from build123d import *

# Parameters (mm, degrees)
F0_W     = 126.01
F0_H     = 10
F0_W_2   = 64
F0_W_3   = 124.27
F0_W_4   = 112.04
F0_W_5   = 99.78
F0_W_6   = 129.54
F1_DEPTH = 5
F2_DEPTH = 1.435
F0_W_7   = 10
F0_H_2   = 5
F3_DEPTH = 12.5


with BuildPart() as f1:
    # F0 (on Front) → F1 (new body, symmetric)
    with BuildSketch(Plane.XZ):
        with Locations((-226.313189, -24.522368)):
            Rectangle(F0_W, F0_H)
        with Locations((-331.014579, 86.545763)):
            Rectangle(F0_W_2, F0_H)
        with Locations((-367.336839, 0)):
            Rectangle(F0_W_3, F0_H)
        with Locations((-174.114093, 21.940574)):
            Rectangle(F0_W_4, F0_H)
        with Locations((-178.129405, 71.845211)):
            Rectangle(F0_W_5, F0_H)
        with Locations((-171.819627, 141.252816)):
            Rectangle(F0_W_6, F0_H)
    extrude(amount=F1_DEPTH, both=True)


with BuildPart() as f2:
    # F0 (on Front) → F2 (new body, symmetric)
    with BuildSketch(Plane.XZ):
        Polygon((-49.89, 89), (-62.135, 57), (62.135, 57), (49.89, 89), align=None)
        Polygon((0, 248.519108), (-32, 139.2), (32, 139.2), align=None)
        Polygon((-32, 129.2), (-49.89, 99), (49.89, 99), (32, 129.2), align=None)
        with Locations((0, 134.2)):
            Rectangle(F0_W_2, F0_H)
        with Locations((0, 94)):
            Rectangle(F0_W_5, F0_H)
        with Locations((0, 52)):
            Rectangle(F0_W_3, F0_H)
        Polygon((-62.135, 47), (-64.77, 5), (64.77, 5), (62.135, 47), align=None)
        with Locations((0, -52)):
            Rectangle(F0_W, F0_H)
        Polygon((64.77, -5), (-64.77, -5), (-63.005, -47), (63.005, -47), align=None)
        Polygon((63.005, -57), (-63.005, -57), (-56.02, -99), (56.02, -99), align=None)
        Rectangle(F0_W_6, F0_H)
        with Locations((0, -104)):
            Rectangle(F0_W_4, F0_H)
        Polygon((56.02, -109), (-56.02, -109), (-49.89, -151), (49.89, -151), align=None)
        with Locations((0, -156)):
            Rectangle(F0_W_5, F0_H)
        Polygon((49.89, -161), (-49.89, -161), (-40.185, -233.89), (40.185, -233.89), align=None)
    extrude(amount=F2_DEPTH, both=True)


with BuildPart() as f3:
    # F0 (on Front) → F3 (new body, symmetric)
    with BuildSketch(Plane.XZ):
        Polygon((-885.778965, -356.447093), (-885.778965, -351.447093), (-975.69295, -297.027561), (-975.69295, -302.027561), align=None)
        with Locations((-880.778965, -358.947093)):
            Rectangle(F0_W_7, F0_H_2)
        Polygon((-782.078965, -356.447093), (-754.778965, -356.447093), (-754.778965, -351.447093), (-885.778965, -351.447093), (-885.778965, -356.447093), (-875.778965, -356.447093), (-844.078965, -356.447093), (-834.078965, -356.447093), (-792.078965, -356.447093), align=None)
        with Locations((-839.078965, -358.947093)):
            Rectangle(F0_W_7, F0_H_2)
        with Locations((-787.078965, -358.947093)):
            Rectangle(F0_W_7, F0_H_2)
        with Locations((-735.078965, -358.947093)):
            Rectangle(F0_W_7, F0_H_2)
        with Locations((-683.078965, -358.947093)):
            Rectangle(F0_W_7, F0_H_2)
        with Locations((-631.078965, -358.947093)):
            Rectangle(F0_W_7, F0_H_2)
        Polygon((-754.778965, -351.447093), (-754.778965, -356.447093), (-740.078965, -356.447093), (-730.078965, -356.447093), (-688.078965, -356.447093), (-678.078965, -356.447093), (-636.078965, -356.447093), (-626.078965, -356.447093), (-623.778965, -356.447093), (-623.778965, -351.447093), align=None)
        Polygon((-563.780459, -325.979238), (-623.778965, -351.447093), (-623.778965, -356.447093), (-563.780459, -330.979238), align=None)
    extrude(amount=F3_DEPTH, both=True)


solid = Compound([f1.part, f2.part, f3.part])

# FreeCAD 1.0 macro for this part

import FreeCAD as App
import Part
import Sketcher
Q = App.Units.Quantity

doc = App.newDocument("Part")
body = doc.addObject("PartDesign::Body", "Body")
body.AllowCompound = True

# Sketch on XZ plane
sketch1 = doc.addObject("Sketcher::SketchObject", "Sketch")
body.addObject(sketch1)
sketch1.AttachmentSupport = (doc.XZ_Plane, [""])
sketch1.MapMode = "FlatFace"
sketch1.addGeometry([
    Part.LineSegment(App.Vector(-289, -20, 0), App.Vector(-289, -30, 0)),  # 0
    Part.LineSegment(App.Vector(-289, -30, 0), App.Vector(-163, -30, 0)),  # 1
    Part.LineSegment(App.Vector(-163, -30, 0), App.Vector(-163, -20, 0)),  # 2
    Part.LineSegment(App.Vector(-163, -20, 0), App.Vector(-289, -20, 0)),  # 3
    Part.LineSegment(App.Vector(-363, 92, 0), App.Vector(-363, 82, 0)),  # 4
    Part.LineSegment(App.Vector(-363, 82, 0), App.Vector(-299, 82, 0)),  # 5
    Part.LineSegment(App.Vector(-299, 82, 0), App.Vector(-299, 92, 0)),  # 6
    Part.LineSegment(App.Vector(-299, 92, 0), App.Vector(-363, 92, 0)),  # 7
    Part.LineSegment(App.Vector(-429, 5, 0), App.Vector(-429, -5, 0)),  # 8
    Part.LineSegment(App.Vector(-429, -5, 0), App.Vector(-305, -5, 0)),  # 9
    Part.LineSegment(App.Vector(-305, -5, 0), App.Vector(-305, 5, 0)),  # 10
    Part.LineSegment(App.Vector(-305, 5, 0), App.Vector(-429, 5, 0)),  # 11
    Part.LineSegment(App.Vector(-230, 27, 0), App.Vector(-230, 17, 0)),  # 12
    Part.LineSegment(App.Vector(-230, 17, 0), App.Vector(-118, 17, 0)),  # 13
    Part.LineSegment(App.Vector(-118, 17, 0), App.Vector(-118, 27, 0)),  # 14
    Part.LineSegment(App.Vector(-118, 27, 0), App.Vector(-230, 27, 0)),  # 15
    Part.LineSegment(App.Vector(-228, 77, 0), App.Vector(-228, 67, 0)),  # 16
    Part.LineSegment(App.Vector(-228, 67, 0), App.Vector(-128, 67, 0)),  # 17
    Part.LineSegment(App.Vector(-128, 67, 0), App.Vector(-128, 77, 0)),  # 18
    Part.LineSegment(App.Vector(-128, 77, 0), App.Vector(-228, 77, 0)),  # 19
    Part.LineSegment(App.Vector(-237, 146, 0), App.Vector(-237, 136, 0)),  # 20
    Part.LineSegment(App.Vector(-237, 136, 0), App.Vector(-107, 136, 0)),  # 21
    Part.LineSegment(App.Vector(-107, 136, 0), App.Vector(-107, 146, 0)),  # 22
    Part.LineSegment(App.Vector(-107, 146, 0), App.Vector(-237, 146, 0)),  # 23
], False)
sketch1.addConstraint([
    Sketcher.Constraint("Coincident", 0, 2, 1, 1),
    Sketcher.Constraint("Coincident", 1, 2, 2, 1),
    Sketcher.Constraint("Coincident", 2, 2, 3, 1),
    Sketcher.Constraint("Coincident", 3, 2, 0, 1),
    Sketcher.Constraint("Coincident", 4, 2, 5, 1),
    Sketcher.Constraint("Coincident", 5, 2, 6, 1),
    Sketcher.Constraint("Coincident", 6, 2, 7, 1),
    Sketcher.Constraint("Coincident", 7, 2, 4, 1),
    Sketcher.Constraint("Coincident", 8, 2, 9, 1),
    Sketcher.Constraint("Coincident", 9, 2, 10, 1),
    Sketcher.Constraint("Coincident", 10, 2, 11, 1),
    Sketcher.Constraint("Coincident", 11, 2, 8, 1),
    Sketcher.Constraint("Coincident", 12, 2, 13, 1),
    Sketcher.Constraint("Coincident", 13, 2, 14, 1),
    Sketcher.Constraint("Coincident", 14, 2, 15, 1),
    Sketcher.Constraint("Coincident", 15, 2, 12, 1),
    Sketcher.Constraint("Coincident", 16, 2, 17, 1),
    Sketcher.Constraint("Coincident", 17, 2, 18, 1),
    Sketcher.Constraint("Coincident", 18, 2, 19, 1),
    Sketcher.Constraint("Coincident", 19, 2, 16, 1),
    Sketcher.Constraint("Coincident", 20, 2, 21, 1),
    Sketcher.Constraint("Coincident", 21, 2, 22, 1),
    Sketcher.Constraint("Coincident", 22, 2, 23, 1),
    Sketcher.Constraint("Coincident", 23, 2, 20, 1),
    Sketcher.Constraint("Vertical", 0),
    Sketcher.Constraint("Horizontal", 1),
    Sketcher.Constraint("Vertical", 2),
    Sketcher.Constraint("Horizontal", 3),
    Sketcher.Constraint("Vertical", 4),
    Sketcher.Constraint("Horizontal", 5),
    Sketcher.Constraint("Vertical", 6),
    Sketcher.Constraint("Horizontal", 7),
    Sketcher.Constraint("Vertical", 8),
    Sketcher.Constraint("Horizontal", 9),
    Sketcher.Constraint("Vertical", 10),
    Sketcher.Constraint("Horizontal", 11),
    Sketcher.Constraint("Vertical", 12),
    Sketcher.Constraint("Horizontal", 13),
    Sketcher.Constraint("Vertical", 14),
    Sketcher.Constraint("Horizontal", 15),
    Sketcher.Constraint("Vertical", 16),
    Sketcher.Constraint("Horizontal", 17),
    Sketcher.Constraint("Vertical", 18),
    Sketcher.Constraint("Horizontal", 19),
    Sketcher.Constraint("Vertical", 20),
    Sketcher.Constraint("Horizontal", 21),
    Sketcher.Constraint("Vertical", 22),
    Sketcher.Constraint("Horizontal", 23),
    Sketcher.Constraint("Equal", 2, 4),
    Sketcher.Constraint("Equal", 6, 8),
    Sketcher.Constraint("Equal", 10, 12),
    Sketcher.Constraint("Equal", 14, 16),
    Sketcher.Constraint("Equal", 18, 20),
    Sketcher.Constraint("DistanceX", 5, 1, 5, 2, 64.0),
    Sketcher.Constraint("DistanceY", 0, 2, 0, 1, 10.0),
    Sketcher.Constraint("DistanceY", 8, 2, -1, 1, 5.0),
    Sketcher.Constraint("DistanceX", 1, 1, 1, 2, 126.01),
    Sketcher.Constraint("DistanceX", 9, 1, 9, 2, 124.27),
    Sketcher.Constraint("DistanceX", 13, 1, 13, 2, 112.04),
    Sketcher.Constraint("DistanceX", 17, 1, 17, 2, 99.78),
    Sketcher.Constraint("DistanceX", 21, 1, 21, 2, 129.54),
    Sketcher.Constraint("DistanceX", 0, 2, -1, 1, 289.318189),
    Sketcher.Constraint("DistanceY", 0, 2, -1, 1, 29.522368),
    Sketcher.Constraint("DistanceX", 4, 2, -1, 1, 363.014579),
    Sketcher.Constraint("DistanceX", 8, 2, -1, 1, 429.471839),
    Sketcher.Constraint("DistanceY", -1, 1, 16, 2, 66.845211),
    Sketcher.Constraint("DistanceY", 3, 2, 4, 2, 101.068131),
    Sketcher.Constraint("DistanceY", 3, 2, 12, 2, 36.462942),
    Sketcher.Constraint("DistanceX", 15, 2, 16, 2, 2.114688),
    Sketcher.Constraint("DistanceY", 15, 2, 20, 2, 109.312242),
    Sketcher.Constraint("DistanceX", 18, 2, 21, 2, 21.189778),
    Sketcher.Constraint("DistanceX", 12, 2, -1, 1, 230.134093),
])
pad1 = doc.addObject("PartDesign::Pad", "Pad")
body.addObject(pad1)
pad1.Profile = sketch1
pad1.Length = 10
pad1.Midplane = True
body2 = doc.addObject("PartDesign::Body", "Body001")

# Sketch on XZ plane
sketch2 = doc.addObject("Sketcher::SketchObject", "Sketch001")
body2.addObject(sketch2)
sketch2.AttachmentSupport = (doc.getObject("XZ_Plane001"), [""])
sketch2.MapMode = "FlatFace"
sketch2.addGeometry([
    Part.LineSegment(App.Vector(-50, 89, 0), App.Vector(-62, 57, 0)),  # 0
    Part.LineSegment(App.Vector(-62, 57, 0), App.Vector(-62, 47, 0)),  # 1
    Part.LineSegment(App.Vector(-62, 47, 0), App.Vector(-65, 5, 0)),  # 2
    Part.LineSegment(App.Vector(-65, 5, 0), App.Vector(-65, -5, 0)),  # 3
    Part.LineSegment(App.Vector(-65, -5, 0), App.Vector(-63, -47, 0)),  # 4
    Part.LineSegment(App.Vector(-63, -47, 0), App.Vector(-63, -57, 0)),  # 5
    Part.LineSegment(App.Vector(-63, -57, 0), App.Vector(-56, -99, 0)),  # 6
    Part.LineSegment(App.Vector(-56, -99, 0), App.Vector(-56, -109, 0)),  # 7
    Part.LineSegment(App.Vector(-56, -109, 0), App.Vector(-50, -151, 0)),  # 8
    Part.LineSegment(App.Vector(-50, -151, 0), App.Vector(-50, -161, 0)),  # 9
    Part.LineSegment(App.Vector(-50, -161, 0), App.Vector(-40, -234, 0)),  # 10
    Part.LineSegment(App.Vector(-40, -234, 0), App.Vector(40, -234, 0)),  # 11
    Part.LineSegment(App.Vector(40, -234, 0), App.Vector(50, -161, 0)),  # 12
    Part.LineSegment(App.Vector(50, -161, 0), App.Vector(50, -151, 0)),  # 13
    Part.LineSegment(App.Vector(50, -151, 0), App.Vector(56, -109, 0)),  # 14
    Part.LineSegment(App.Vector(56, -109, 0), App.Vector(56, -99, 0)),  # 15
    Part.LineSegment(App.Vector(56, -99, 0), App.Vector(63, -57, 0)),  # 16
    Part.LineSegment(App.Vector(63, -57, 0), App.Vector(63, -47, 0)),  # 17
    Part.LineSegment(App.Vector(63, -47, 0), App.Vector(65, -5, 0)),  # 18
    Part.LineSegment(App.Vector(65, -5, 0), App.Vector(65, 5, 0)),  # 19
    Part.LineSegment(App.Vector(65, 5, 0), App.Vector(62, 47, 0)),  # 20
    Part.LineSegment(App.Vector(62, 47, 0), App.Vector(62, 57, 0)),  # 21
    Part.LineSegment(App.Vector(62, 57, 0), App.Vector(50, 89, 0)),  # 22
    Part.LineSegment(App.Vector(50, 89, 0), App.Vector(50, 99, 0)),  # 23
    Part.LineSegment(App.Vector(50, 99, 0), App.Vector(32, 129, 0)),  # 24
    Part.LineSegment(App.Vector(32, 129, 0), App.Vector(32, 139, 0)),  # 25
    Part.LineSegment(App.Vector(32, 139, 0), App.Vector(0, 249, 0)),  # 26
    Part.LineSegment(App.Vector(0, 249, 0), App.Vector(-32, 139, 0)),  # 27
    Part.LineSegment(App.Vector(-32, 139, 0), App.Vector(-32, 129, 0)),  # 28
    Part.LineSegment(App.Vector(-32, 129, 0), App.Vector(-50, 99, 0)),  # 29
    Part.LineSegment(App.Vector(-50, 99, 0), App.Vector(-50, 89, 0)),  # 30
], False)
sketch2.addConstraint([
    Sketcher.Constraint("Coincident", 0, 2, 1, 1),
    Sketcher.Constraint("Coincident", 1, 2, 2, 1),
    Sketcher.Constraint("Coincident", 2, 2, 3, 1),
    Sketcher.Constraint("Coincident", 3, 2, 4, 1),
    Sketcher.Constraint("Coincident", 4, 2, 5, 1),
    Sketcher.Constraint("Coincident", 5, 2, 6, 1),
    Sketcher.Constraint("Coincident", 6, 2, 7, 1),
    Sketcher.Constraint("Coincident", 7, 2, 8, 1),
    Sketcher.Constraint("Coincident", 8, 2, 9, 1),
    Sketcher.Constraint("Coincident", 9, 2, 10, 1),
    Sketcher.Constraint("Coincident", 10, 2, 11, 1),
    Sketcher.Constraint("Coincident", 11, 2, 12, 1),
    Sketcher.Constraint("Coincident", 12, 2, 13, 1),
    Sketcher.Constraint("Coincident", 13, 2, 14, 1),
    Sketcher.Constraint("Coincident", 14, 2, 15, 1),
    Sketcher.Constraint("Coincident", 15, 2, 16, 1),
    Sketcher.Constraint("Coincident", 16, 2, 17, 1),
    Sketcher.Constraint("Coincident", 17, 2, 18, 1),
    Sketcher.Constraint("Coincident", 18, 2, 19, 1),
    Sketcher.Constraint("Coincident", 19, 2, 20, 1),
    Sketcher.Constraint("Coincident", 20, 2, 21, 1),
    Sketcher.Constraint("Coincident", 21, 2, 22, 1),
    Sketcher.Constraint("Coincident", 22, 2, 23, 1),
    Sketcher.Constraint("Coincident", 23, 2, 24, 1),
    Sketcher.Constraint("Coincident", 24, 2, 25, 1),
    Sketcher.Constraint("Coincident", 25, 2, 26, 1),
    Sketcher.Constraint("Coincident", 26, 2, 27, 1),
    Sketcher.Constraint("Coincident", 27, 2, 28, 1),
    Sketcher.Constraint("Coincident", 28, 2, 29, 1),
    Sketcher.Constraint("Coincident", 29, 2, 30, 1),
    Sketcher.Constraint("Coincident", 30, 2, 0, 1),
    Sketcher.Constraint("Vertical", 1),
    Sketcher.Constraint("Vertical", 3),
    Sketcher.Constraint("Vertical", 5),
    Sketcher.Constraint("Vertical", 7),
    Sketcher.Constraint("Vertical", 9),
    Sketcher.Constraint("Horizontal", 11),
    Sketcher.Constraint("Vertical", 13),
    Sketcher.Constraint("Vertical", 15),
    Sketcher.Constraint("Vertical", 17),
    Sketcher.Constraint("Vertical", 19),
    Sketcher.Constraint("Vertical", 21),
    Sketcher.Constraint("Vertical", 23),
    Sketcher.Constraint("Vertical", 25),
    Sketcher.Constraint("Vertical", 28),
    Sketcher.Constraint("Vertical", 30),
    Sketcher.Constraint("Symmetric", 2, 2, 18, 2, -1, 1),
    Sketcher.Constraint("Symmetric", 9, 2, 12, 2, -2),
    Sketcher.Constraint("Symmetric", 7, 2, 14, 2, -2),
    Sketcher.Constraint("Symmetric", 5, 2, 16, 2, -2),
    Sketcher.Constraint("Symmetric", 1, 2, 20, 2, -2),
    Sketcher.Constraint("Symmetric", 25, 2, 27, 2, -2),
    Sketcher.Constraint("Symmetric", 23, 2, 29, 2, -2),
    Sketcher.Constraint("PointOnObject", 26, 2, -2),
    Sketcher.Constraint("Horizontal", 8, 2, 13, 2),
    Sketcher.Constraint("Horizontal", 6, 2, 15, 2),
    Sketcher.Constraint("Horizontal", 4, 2, 17, 2),
    Sketcher.Constraint("Horizontal", 3, 2, 18, 2),
    Sketcher.Constraint("Horizontal", 2, 2, 19, 2),
    Sketcher.Constraint("Horizontal", 0, 2, 21, 2),
    Sketcher.Constraint("Horizontal", 24, 2, 28, 2),
    Sketcher.Constraint("Horizontal", 22, 2, 30, 2),
    Sketcher.Constraint("Vertical", 13, 2, 22, 2),
    Sketcher.Constraint("Equal", 1, 3),
    Sketcher.Constraint("Equal", 3, 5),
    Sketcher.Constraint("Equal", 5, 7),
    Sketcher.Constraint("Equal", 7, 9),
    Sketcher.Constraint("Equal", 21, 23),
    Sketcher.Constraint("Equal", 23, 25),
    Sketcher.Constraint("Equal", 10, 12),
    Sketcher.Constraint("DistanceY", 1, 2, 1, 1, 10.0),
    Sketcher.Constraint("DistanceY", -1, 1, 0, 2, 57.0),
    Sketcher.Constraint("DistanceY", 4, 2, -1, 1, 47.0),
    Sketcher.Constraint("DistanceY", 6, 2, -1, 1, 99.0),
    Sketcher.Constraint("DistanceY", 8, 2, -1, 1, 151.0),
    Sketcher.Constraint("DistanceY", -1, 1, 22, 2, 89.0),
    Sketcher.Constraint("DistanceX", -1, 1, 24, 2, 32.0),
    Sketcher.Constraint("DistanceX", 11, 1, 11, 2, 80.37),
    Sketcher.Constraint("DistanceY", -1, 1, 24, 2, 129.2),
    Sketcher.Constraint("DistanceX", 2, 2, -1, 1, 64.77),
    Sketcher.Constraint("DistanceX", 6, 2, -1, 1, 56.02),
    Sketcher.Constraint("DistanceX", 8, 2, -1, 1, 49.89),
    Sketcher.Constraint("DistanceY", 10, 2, -1, 1, 233.89),
    Sketcher.Constraint("DistanceX", 4, 2, 1, 2, 0.87),
    Sketcher.Constraint("DistanceX", 5, 2, 10, 2, 22.82),
    Sketcher.Constraint("DistanceY", 25, 2, 26, 2, 109.319108),
])
pad2 = doc.addObject("PartDesign::Pad", "Pad001")
body2.addObject(pad2)
pad2.Profile = sketch2
pad2.Length = 2.87
pad2.Midplane = True
body3 = doc.addObject("PartDesign::Body", "Body002")

# Sketch on XZ plane
sketch3 = doc.addObject("Sketcher::SketchObject", "Sketch002")
body3.addObject(sketch3)
sketch3.AttachmentSupport = (doc.getObject("XZ_Plane002"), [""])
sketch3.MapMode = "FlatFace"
sketch3.addGeometry([
    Part.LineSegment(App.Vector(-885.8, -351.4, 0), App.Vector(-975.7, -297, 0)),  # 0
    Part.LineSegment(App.Vector(-975.7, -297, 0), App.Vector(-975.7, -302, 0)),  # 1
    Part.LineSegment(App.Vector(-975.7, -302, 0), App.Vector(-885.8, -356.4, 0)),  # 2
    Part.LineSegment(App.Vector(-885.8, -356.4, 0), App.Vector(-885.8, -361.4, 0)),  # 3
    Part.LineSegment(App.Vector(-885.8, -361.4, 0), App.Vector(-875.8, -361.4, 0)),  # 4
    Part.LineSegment(App.Vector(-875.8, -361.4, 0), App.Vector(-875.8, -356.4, 0)),  # 5
    Part.LineSegment(App.Vector(-875.8, -356.4, 0), App.Vector(-844.1, -356.4, 0)),  # 6
    Part.LineSegment(App.Vector(-844.1, -356.4, 0), App.Vector(-844.1, -361.4, 0)),  # 7
    Part.LineSegment(App.Vector(-844.1, -361.4, 0), App.Vector(-834.1, -361.4, 0)),  # 8
    Part.LineSegment(App.Vector(-834.1, -361.4, 0), App.Vector(-834.1, -356.4, 0)),  # 9
    Part.LineSegment(App.Vector(-834.1, -356.4, 0), App.Vector(-792.1, -356.4, 0)),  # 10
    Part.LineSegment(App.Vector(-792.1, -356.4, 0), App.Vector(-792.1, -361.4, 0)),  # 11
    Part.LineSegment(App.Vector(-792.1, -361.4, 0), App.Vector(-782.1, -361.4, 0)),  # 12
    Part.LineSegment(App.Vector(-782.1, -361.4, 0), App.Vector(-782.1, -356.4, 0)),  # 13
    Part.LineSegment(App.Vector(-782.1, -356.4, 0), App.Vector(-740.1, -356.4, 0)),  # 14
    Part.LineSegment(App.Vector(-740.1, -356.4, 0), App.Vector(-740.1, -361.4, 0)),  # 15
    Part.LineSegment(App.Vector(-740.1, -361.4, 0), App.Vector(-730.1, -361.4, 0)),  # 16
    Part.LineSegment(App.Vector(-730.1, -361.4, 0), App.Vector(-730.1, -356.4, 0)),  # 17
    Part.LineSegment(App.Vector(-730.1, -356.4, 0), App.Vector(-688.1, -356.4, 0)),  # 18
    Part.LineSegment(App.Vector(-688.1, -356.4, 0), App.Vector(-688.1, -361.4, 0)),  # 19
    Part.LineSegment(App.Vector(-688.1, -361.4, 0), App.Vector(-678.1, -361.4, 0)),  # 20
    Part.LineSegment(App.Vector(-678.1, -361.4, 0), App.Vector(-678.1, -356.4, 0)),  # 21
    Part.LineSegment(App.Vector(-678.1, -356.4, 0), App.Vector(-636.1, -356.4, 0)),  # 22
    Part.LineSegment(App.Vector(-636.1, -356.4, 0), App.Vector(-636.1, -361.4, 0)),  # 23
    Part.LineSegment(App.Vector(-636.1, -361.4, 0), App.Vector(-626.1, -361.4, 0)),  # 24
    Part.LineSegment(App.Vector(-626.1, -361.4, 0), App.Vector(-626.1, -356.4, 0)),  # 25
    Part.LineSegment(App.Vector(-626.1, -356.4, 0), App.Vector(-623.8, -356.4, 0)),  # 26
    Part.LineSegment(App.Vector(-623.8, -356.4, 0), App.Vector(-563.8, -331, 0)),  # 27
    Part.LineSegment(App.Vector(-563.8, -331, 0), App.Vector(-563.8, -326, 0)),  # 28
    Part.LineSegment(App.Vector(-563.8, -326, 0), App.Vector(-623.8, -351.4, 0)),  # 29
    Part.LineSegment(App.Vector(-623.8, -351.4, 0), App.Vector(-885.8, -351.4, 0)),  # 30
], False)
sketch3.addConstraint([
    Sketcher.Constraint("Coincident", 0, 2, 1, 1),
    Sketcher.Constraint("Coincident", 1, 2, 2, 1),
    Sketcher.Constraint("Coincident", 2, 2, 3, 1),
    Sketcher.Constraint("Coincident", 3, 2, 4, 1),
    Sketcher.Constraint("Coincident", 4, 2, 5, 1),
    Sketcher.Constraint("Coincident", 5, 2, 6, 1),
    Sketcher.Constraint("Coincident", 6, 2, 7, 1),
    Sketcher.Constraint("Coincident", 7, 2, 8, 1),
    Sketcher.Constraint("Coincident", 8, 2, 9, 1),
    Sketcher.Constraint("Coincident", 9, 2, 10, 1),
    Sketcher.Constraint("Coincident", 10, 2, 11, 1),
    Sketcher.Constraint("Coincident", 11, 2, 12, 1),
    Sketcher.Constraint("Coincident", 12, 2, 13, 1),
    Sketcher.Constraint("Coincident", 13, 2, 14, 1),
    Sketcher.Constraint("Coincident", 14, 2, 15, 1),
    Sketcher.Constraint("Coincident", 15, 2, 16, 1),
    Sketcher.Constraint("Coincident", 16, 2, 17, 1),
    Sketcher.Constraint("Coincident", 17, 2, 18, 1),
    Sketcher.Constraint("Coincident", 18, 2, 19, 1),
    Sketcher.Constraint("Coincident", 19, 2, 20, 1),
    Sketcher.Constraint("Coincident", 20, 2, 21, 1),
    Sketcher.Constraint("Coincident", 21, 2, 22, 1),
    Sketcher.Constraint("Coincident", 22, 2, 23, 1),
    Sketcher.Constraint("Coincident", 23, 2, 24, 1),
    Sketcher.Constraint("Coincident", 24, 2, 25, 1),
    Sketcher.Constraint("Coincident", 25, 2, 26, 1),
    Sketcher.Constraint("Coincident", 26, 2, 27, 1),
    Sketcher.Constraint("Coincident", 27, 2, 28, 1),
    Sketcher.Constraint("Coincident", 28, 2, 29, 1),
    Sketcher.Constraint("Coincident", 29, 2, 30, 1),
    Sketcher.Constraint("Coincident", 30, 2, 0, 1),
    Sketcher.Constraint("Vertical", 1),
    Sketcher.Constraint("Vertical", 3),
    Sketcher.Constraint("Horizontal", 4),
    Sketcher.Constraint("Vertical", 5),
    Sketcher.Constraint("Horizontal", 6),
    Sketcher.Constraint("Vertical", 7),
    Sketcher.Constraint("Horizontal", 8),
    Sketcher.Constraint("Vertical", 9),
    Sketcher.Constraint("Horizontal", 10),
    Sketcher.Constraint("Vertical", 11),
    Sketcher.Constraint("Horizontal", 12),
    Sketcher.Constraint("Vertical", 13),
    Sketcher.Constraint("Horizontal", 14),
    Sketcher.Constraint("Vertical", 15),
    Sketcher.Constraint("Horizontal", 16),
    Sketcher.Constraint("Vertical", 17),
    Sketcher.Constraint("Horizontal", 18),
    Sketcher.Constraint("Vertical", 19),
    Sketcher.Constraint("Horizontal", 20),
    Sketcher.Constraint("Vertical", 21),
    Sketcher.Constraint("Horizontal", 22),
    Sketcher.Constraint("Vertical", 23),
    Sketcher.Constraint("Horizontal", 24),
    Sketcher.Constraint("Vertical", 25),
    Sketcher.Constraint("Horizontal", 26),
    Sketcher.Constraint("Vertical", 28),
    Sketcher.Constraint("Horizontal", 30),
    Sketcher.Constraint("Parallel", 0, 2),
    Sketcher.Constraint("Parallel", 27, 29),
    Sketcher.Constraint("Horizontal", 2, 2, 5, 2),
    Sketcher.Constraint("Horizontal", 4, 2, 7, 2),
    Sketcher.Constraint("Horizontal", 6, 2, 9, 2),
    Sketcher.Constraint("Horizontal", 8, 2, 11, 2),
    Sketcher.Constraint("Horizontal", 10, 2, 13, 2),
    Sketcher.Constraint("Horizontal", 12, 2, 15, 2),
    Sketcher.Constraint("Horizontal", 14, 2, 17, 2),
    Sketcher.Constraint("Horizontal", 16, 2, 19, 2),
    Sketcher.Constraint("Horizontal", 18, 2, 21, 2),
    Sketcher.Constraint("Horizontal", 20, 2, 23, 2),
    Sketcher.Constraint("Horizontal", 22, 2, 25, 2),
    Sketcher.Constraint("Vertical", 26, 2, 29, 2),
    Sketcher.Constraint("Vertical", 3, 2, 30, 2),
    Sketcher.Constraint("Equal", 4, 8),
    Sketcher.Constraint("Equal", 8, 12),
    Sketcher.Constraint("Equal", 10, 14),
    Sketcher.Constraint("Equal", 12, 16),
    Sketcher.Constraint("Equal", 14, 18),
    Sketcher.Constraint("Equal", 16, 20),
    Sketcher.Constraint("Equal", 18, 22),
    Sketcher.Constraint("Equal", 20, 24),
    Sketcher.Constraint("Equal", 1, 3),
    Sketcher.Constraint("DistanceX", 4, 1, 4, 2, 10.0),
    Sketcher.Constraint("DistanceX", 10, 1, 10, 2, 42.0),
    Sketcher.Constraint("DistanceX", 30, 2, 30, 1, 262.0),
    Sketcher.Constraint("DistanceY", 1, 2, 1, 1, 5.0),
    Sketcher.Constraint("Angle", 27, Q("23 deg")),
    Sketcher.Constraint("DistanceX", 6, 1, 6, 2, 31.7),
    Sketcher.Constraint("Distance", 0, 105.100001),
    Sketcher.Constraint("Distance", 27, 65.18),
    Sketcher.Constraint("DistanceX", 0, 2, -1, 1, 975.69295),
    Sketcher.Constraint("DistanceY", 0, 2, -1, 1, 297.027561),
    Sketcher.Constraint("DistanceX", 27, 2, -1, 1, 563.780459),
])
pad3 = doc.addObject("PartDesign::Pad", "Pad002")
body3.addObject(pad3)
pad3.Profile = sketch3
pad3.Length = 25
pad3.Midplane = True

doc.recompute()
